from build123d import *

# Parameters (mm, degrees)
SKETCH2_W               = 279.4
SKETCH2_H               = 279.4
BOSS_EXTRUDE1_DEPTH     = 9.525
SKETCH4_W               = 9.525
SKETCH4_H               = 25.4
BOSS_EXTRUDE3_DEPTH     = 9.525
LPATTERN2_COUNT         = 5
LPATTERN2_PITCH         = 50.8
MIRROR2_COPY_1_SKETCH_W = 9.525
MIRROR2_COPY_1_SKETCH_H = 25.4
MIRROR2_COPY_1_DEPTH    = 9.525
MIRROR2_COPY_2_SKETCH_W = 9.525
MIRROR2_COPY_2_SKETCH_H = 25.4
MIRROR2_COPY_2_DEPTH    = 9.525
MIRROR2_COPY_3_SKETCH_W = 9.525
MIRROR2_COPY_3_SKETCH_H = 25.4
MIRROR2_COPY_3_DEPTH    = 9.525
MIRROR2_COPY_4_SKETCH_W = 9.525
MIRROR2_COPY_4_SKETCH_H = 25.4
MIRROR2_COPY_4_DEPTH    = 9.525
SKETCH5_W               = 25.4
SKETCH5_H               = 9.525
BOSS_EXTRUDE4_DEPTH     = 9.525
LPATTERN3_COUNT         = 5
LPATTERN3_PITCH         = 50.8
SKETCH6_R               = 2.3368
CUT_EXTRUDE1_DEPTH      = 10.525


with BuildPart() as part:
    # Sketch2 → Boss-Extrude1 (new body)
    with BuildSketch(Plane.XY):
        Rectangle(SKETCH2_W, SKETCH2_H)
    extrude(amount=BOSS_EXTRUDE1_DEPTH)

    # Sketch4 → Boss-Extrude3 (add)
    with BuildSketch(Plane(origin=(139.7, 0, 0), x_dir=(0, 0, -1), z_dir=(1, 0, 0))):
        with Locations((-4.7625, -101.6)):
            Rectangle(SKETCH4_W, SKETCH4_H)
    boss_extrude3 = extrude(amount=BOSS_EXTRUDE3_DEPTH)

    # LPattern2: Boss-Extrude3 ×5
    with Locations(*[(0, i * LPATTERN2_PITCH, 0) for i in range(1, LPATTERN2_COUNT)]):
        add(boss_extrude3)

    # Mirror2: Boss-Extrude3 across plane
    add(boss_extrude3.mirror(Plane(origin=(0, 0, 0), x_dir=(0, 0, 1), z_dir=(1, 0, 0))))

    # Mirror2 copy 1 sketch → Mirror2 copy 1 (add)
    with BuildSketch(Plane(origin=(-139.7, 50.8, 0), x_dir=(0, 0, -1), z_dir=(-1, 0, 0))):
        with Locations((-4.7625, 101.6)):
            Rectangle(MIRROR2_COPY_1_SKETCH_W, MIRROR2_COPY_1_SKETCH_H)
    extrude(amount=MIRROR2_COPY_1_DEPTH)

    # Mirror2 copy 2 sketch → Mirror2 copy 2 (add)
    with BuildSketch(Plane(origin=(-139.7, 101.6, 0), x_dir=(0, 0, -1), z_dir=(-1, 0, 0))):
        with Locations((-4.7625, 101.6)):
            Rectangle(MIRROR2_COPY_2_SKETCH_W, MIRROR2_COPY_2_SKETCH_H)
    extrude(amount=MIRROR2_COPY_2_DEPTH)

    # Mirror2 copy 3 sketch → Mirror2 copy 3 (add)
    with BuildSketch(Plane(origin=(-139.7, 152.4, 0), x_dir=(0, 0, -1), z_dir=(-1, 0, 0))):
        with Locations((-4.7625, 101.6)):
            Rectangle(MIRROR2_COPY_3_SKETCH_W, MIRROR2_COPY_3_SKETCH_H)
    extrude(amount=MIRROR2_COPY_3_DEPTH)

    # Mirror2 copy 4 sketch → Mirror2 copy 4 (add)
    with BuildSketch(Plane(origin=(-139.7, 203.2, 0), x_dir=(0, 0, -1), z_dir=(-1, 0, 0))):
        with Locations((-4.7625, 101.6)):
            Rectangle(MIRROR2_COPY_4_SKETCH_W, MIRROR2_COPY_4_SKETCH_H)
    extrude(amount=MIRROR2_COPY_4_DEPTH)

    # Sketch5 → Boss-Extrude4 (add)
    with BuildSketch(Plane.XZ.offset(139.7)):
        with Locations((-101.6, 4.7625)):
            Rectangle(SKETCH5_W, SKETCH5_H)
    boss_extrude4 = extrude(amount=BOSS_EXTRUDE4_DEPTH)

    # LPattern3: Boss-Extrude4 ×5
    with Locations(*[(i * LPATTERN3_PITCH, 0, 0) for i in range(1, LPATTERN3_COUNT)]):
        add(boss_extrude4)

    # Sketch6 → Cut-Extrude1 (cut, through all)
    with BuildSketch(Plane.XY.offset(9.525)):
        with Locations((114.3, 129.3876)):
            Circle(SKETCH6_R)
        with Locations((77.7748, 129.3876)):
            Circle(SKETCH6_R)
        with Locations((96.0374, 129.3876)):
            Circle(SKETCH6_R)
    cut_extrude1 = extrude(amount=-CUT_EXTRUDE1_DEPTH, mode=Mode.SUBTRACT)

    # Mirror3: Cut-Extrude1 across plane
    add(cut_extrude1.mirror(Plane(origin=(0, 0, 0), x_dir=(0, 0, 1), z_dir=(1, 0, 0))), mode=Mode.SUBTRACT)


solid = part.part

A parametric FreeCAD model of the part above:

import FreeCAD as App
import Part
import Sketcher

V = App.Vector
Q = App.Units.Quantity

doc = App.newDocument("Part")
params = doc.addObject("Spreadsheet::Sheet", "Params")
for row, (alias, value) in enumerate([
    ("sketch1_width", "11 in"),
    ("pad1_length", "0.375 in"),
    ("sketch2_width", "1 in"),
    ("sketch2_height", "0.375 in"),
    ("pad2_length", "0.375 in"),
    ("linearpattern_pitch", "2 in"),
    ("sketch3_width", "1 in"),
    ("sketch3_height", "0.375 in"),
    ("pad3_length", "0.375 in"),
    ("sketch4_width", "1 in"),
    ("sketch4_height", "0.375 in"),
    ("pad4_length", "0.375 in"),
    ("sketch5_width", "1 in"),
    ("sketch5_height", "0.375 in"),
    ("pad5_length", "0.375 in"),
    ("sketch6_width", "1 in"),
    ("sketch6_height", "0.375 in"),
    ("pad6_length", "0.375 in"),
    ("sketch7_width", "1 in"),
    ("sketch7_height", "0.375 in"),
    ("pad7_length", "0.375 in"),
    ("linearpattern2_pitch", "2 in"),
    ("sketch8_diameter", "0.184 in"),
], start=1):
    params.set(f"A{row}", alias)
    params.set(f"B{row}", "=" + value)
    params.setAlias(f"B{row}", alias)

body = doc.addObject("PartDesign::Body", "Body")

sketch1 = doc.addObject("Sketcher::SketchObject", "Sketch")
body.addObject(sketch1)
sketch1.AttachmentSupport = (doc.XY_Plane, [""])
sketch1.MapMode = "FlatFace"
sketch1.addGeometry([
    Part.LineSegment(V(-140, 140, 0), V(-140, -140, 0)),
    Part.LineSegment(V(-140, -140, 0), V(140, -140, 0)),
    Part.LineSegment(V(140, -140, 0), V(140, 140, 0)),
    Part.LineSegment(V(140, 140, 0), V(-140, 140, 0)),
], False)
sketch1.addConstraint([
    Sketcher.Constraint("Coincident", 0, 2, 1, 1),
    Sketcher.Constraint("Coincident", 1, 2, 2, 1),
    Sketcher.Constraint("Coincident", 2, 2, 3, 1),
    Sketcher.Constraint("Coincident", 3, 2, 0, 1),
    Sketcher.Constraint("Vertical", 0),
    Sketcher.Constraint("Horizontal", 1),
    Sketcher.Constraint("Vertical", 2),
    Sketcher.Constraint("Horizontal", 3),
    Sketcher.Constraint("Symmetric", 0, 2, 2, 2, -1, 1),
    Sketcher.Constraint("Equal", 3, 0),
    Sketcher.Constraint("DistanceX", 1, 1, 1, 2, Q("11 in")),
])
sketch1.setExpression("Constraints[10]", "Params.sketch1_width")
pad1 = doc.addObject("PartDesign::Pad", "Pad")
body.addObject(pad1)
pad1.Profile = sketch1
pad1.setExpression("Length", "Params.pad1_length")

sketch2 = doc.addObject("Sketcher::SketchObject", "Sketch001")
body.addObject(sketch2)
sketch2.AttachmentSupport = (doc.YZ_Plane, [""])
sketch2.MapMode = "FlatFace"
sketch2.AttachmentOffset = App.Placement(V(0, 0, 5.5 * 25.4), App.Rotation())
sketch2.addGeometry([
    Part.LineSegment(V(-89, 10, 0), V(-114, 10, 0)),
    Part.LineSegment(V(-114, 10, 0), V(-114, 0, 0)),
    Part.LineSegment(V(-114, 0, 0), V(-89, 0, 0)),
    Part.LineSegment(V(-89, 0, 0), V(-89, 10, 0)),
], False)
sketch2.addConstraint([
    Sketcher.Constraint("Coincident", 0, 2, 1, 1),
    Sketcher.Constraint("Coincident", 1, 2, 2, 1),
    Sketcher.Constraint("Coincident", 2, 2, 3, 1),
    Sketcher.Constraint("Coincident", 3, 2, 0, 1),
    Sketcher.Constraint("Horizontal", 0),
    Sketcher.Constraint("Vertical", 1),
    Sketcher.Constraint("Horizontal", 2),
    Sketcher.Constraint("Vertical", 3),
    Sketcher.Constraint("PointOnObject", 1, 2, -1),
    Sketcher.Constraint("DistanceX", 0, 2, 0, 1, Q("1 in")),
    Sketcher.Constraint("DistanceX", 0, 2, -1, 1, Q("4.5 in")),
    Sketcher.Constraint("DistanceY", 1, 2, 1, 1, Q("0.375 in")),
])
sketch2.setExpression("Constraints[9]", "Params.sketch2_width")
sketch2.setExpression("Constraints[11]", "Params.sketch2_height")
pad2 = doc.addObject("PartDesign::Pad", "Pad001")
body.addObject(pad2)
pad2.Profile = sketch2
pad2.setExpression("Length", "Params.pad2_length")
doc.recompute()

linearpattern = doc.addObject("PartDesign::LinearPattern", "LinearPattern")
body.addObject(linearpattern)
linearpattern.Originals = [pad2]
linearpattern.Direction = (doc.Y_Axis, [""])
linearpattern.Mode = "offset"
linearpattern.setExpression("Offset", "Params.linearpattern_pitch")
linearpattern.Occurrences = 5
body.Tip = linearpattern
doc.recompute()

mirrored = doc.addObject("PartDesign::Mirrored", "Mirrored")
body.addObject(mirrored)
mirrored.Originals = [pad2]
mirrored.MirrorPlane = (doc.YZ_Plane, [""])
body.Tip = mirrored

sketch3 = doc.addObject("Sketcher::SketchObject", "Sketch002")
body.addObject(sketch3)
sketch3.AttachmentSupport = (doc.YZ_Plane, [""])
sketch3.MapMode = "FlatFace"
sketch3.AttachmentOffset = App.Placement(V(0, 0, -5.5 * 25.4), App.Rotation())
sketch3.addGeometry([
    Part.LineSegment(V(-64, 10, 0), V(-38, 10, 0)),
    Part.LineSegment(V(-38, 10, 0), V(-38, 0, 0)),
    Part.LineSegment(V(-38, 0, 0), V(-64, 0, 0)),
    Part.LineSegment(V(-64, 0, 0), V(-64, 10, 0)),
], False)
sketch3.addConstraint([
    Sketcher.Constraint("Coincident", 0, 2, 1, 1),
    Sketcher.Constraint("Coincident", 1, 2, 2, 1),
    Sketcher.Constraint("Coincident", 2, 2, 3, 1),
    Sketcher.Constraint("Coincident", 3, 2, 0, 1),
    Sketcher.Constraint("Horizontal", 0),
    Sketcher.Constraint("Vertical", 1),
    Sketcher.Constraint("Horizontal", 2),
    Sketcher.Constraint("Vertical", 3),
    Sketcher.Constraint("PointOnObject", 1, 2, -1),
    Sketcher.Constraint("DistanceX", 0, 1, 0, 2, Q("1 in")),
    Sketcher.Constraint("DistanceX", 0, 2, -1, 1, Q("1.5 in")),
    Sketcher.Constraint("DistanceY", 1, 2, 1, 1, Q("0.375 in")),
])
sketch3.setExpression("Constraints[9]", "Params.sketch3_width")
sketch3.setExpression("Constraints[11]", "Params.sketch3_height")
pad3 = doc.addObject("PartDesign::Pad", "Pad002")
body.addObject(pad3)
pad3.Profile = sketch3
pad3.setExpression("Length", "Params.pad3_length")
pad3.Reversed = True

sketch4 = doc.addObject("Sketcher::SketchObject", "Sketch003")
body.addObject(sketch4)
sketch4.AttachmentSupport = (doc.YZ_Plane, [""])
sketch4.MapMode = "FlatFace"
sketch4.AttachmentOffset = App.Placement(V(0, 0, -5.5 * 25.4), App.Rotation())
sketch4.addGeometry([
    Part.LineSegment(V(-13, 10, 0), V(13, 10, 0)),
    Part.LineSegment(V(13, 10, 0), V(13, 0, 0)),
    Part.LineSegment(V(13, 0, 0), V(-13, 0, 0)),
    Part.LineSegment(V(-13, 0, 0), V(-13, 10, 0)),
], False)
sketch4.addConstraint([
    Sketcher.Constraint("Coincident", 0, 2, 1, 1),
    Sketcher.Constraint("Coincident", 1, 2, 2, 1),
    Sketcher.Constraint("Coincident", 2, 2, 3, 1),
    Sketcher.Constraint("Coincident", 3, 2, 0, 1),
    Sketcher.Constraint("Horizontal", 0),
    Sketcher.Constraint("Vertical", 1),
    Sketcher.Constraint("Horizontal", 2),
    Sketcher.Constraint("Vertical", 3),
    Sketcher.Constraint("Symmetric", 1, 2, 2, 2, -1, 1),
    Sketcher.Constraint("DistanceX", 0, 1, 0, 2, Q("1 in")),
    Sketcher.Constraint("DistanceY", 1, 2, 1, 1, Q("0.375 in")),
])
sketch4.setExpression("Constraints[9]", "Params.sketch4_width")
sketch4.setExpression("Constraints[10]", "Params.sketch4_height")
pad4 = doc.addObject("PartDesign::Pad", "Pad003")
body.addObject(pad4)
pad4.Profile = sketch4
pad4.setExpression("Length", "Params.pad4_length")
pad4.Reversed = True

sketch5 = doc.addObject("Sketcher::SketchObject", "Sketch004")
body.addObject(sketch5)
sketch5.AttachmentSupport = (doc.YZ_Plane, [""])
sketch5.MapMode = "FlatFace"
sketch5.AttachmentOffset = App.Placement(V(0, 0, -5.5 * 25.4), App.Rotation())
sketch5.addGeometry([
    Part.LineSegment(V(38, 10, 0), V(64, 10, 0)),
    Part.LineSegment(V(64, 10, 0), V(64, 0, 0)),
    Part.LineSegment(V(64, 0, 0), V(38, 0, 0)),
    Part.LineSegment(V(38, 0, 0), V(38, 10, 0)),
], False)
sketch5.addConstraint([
    Sketcher.Constraint("Coincident", 0, 2, 1, 1),
    Sketcher.Constraint("Coincident", 1, 2, 2, 1),
    Sketcher.Constraint("Coincident", 2, 2, 3, 1),
    Sketcher.Constraint("Coincident", 3, 2, 0, 1),
    Sketcher.Constraint("Horizontal", 0),
    Sketcher.Constraint("Vertical", 1),
    Sketcher.Constraint("Horizontal", 2),
    Sketcher.Constraint("Vertical", 3),
    Sketcher.Constraint("PointOnObject", 1, 2, -1),
    Sketcher.Constraint("DistanceX", 0, 1, 0, 2, Q("1 in")),
    Sketcher.Constraint("DistanceX", -1, 1, 0, 2, Q("2.5 in")),
    Sketcher.Constraint("DistanceY", 1, 2, 1, 1, Q("0.375 in")),
])
sketch5.setExpression("Constraints[9]", "Params.sketch5_width")
sketch5.setExpression("Constraints[11]", "Params.sketch5_height")
pad5 = doc.addObject("PartDesign::Pad", "Pad004")
body.addObject(pad5)
pad5.Profile = sketch5
pad5.setExpression("Length", "Params.pad5_length")
pad5.Reversed = True

sketch6 = doc.addObject("Sketcher::SketchObject", "Sketch005")
body.addObject(sketch6)
sketch6.AttachmentSupport = (doc.YZ_Plane, [""])
sketch6.MapMode = "FlatFace"
sketch6.AttachmentOffset = App.Placement(V(0, 0, -5.5 * 25.4), App.Rotation())
sketch6.addGeometry([
    Part.LineSegment(V(89, 10, 0), V(114, 10, 0)),
    Part.LineSegment(V(114, 10, 0), V(114, 0, 0)),
    Part.LineSegment(V(114, 0, 0), V(89, 0, 0)),
    Part.LineSegment(V(89, 0, 0), V(89, 10, 0)),
], False)
sketch6.addConstraint([
    Sketcher.Constraint("Coincident", 0, 2, 1, 1),
    Sketcher.Constraint("Coincident", 1, 2, 2, 1),
    Sketcher.Constraint("Coincident", 2, 2, 3, 1),
    Sketcher.Constraint("Coincident", 3, 2, 0, 1),
    Sketcher.Constraint("Horizontal", 0),
    Sketcher.Constraint("Vertical", 1),
    Sketcher.Constraint("Horizontal", 2),
    Sketcher.Constraint("Vertical", 3),
    Sketcher.Constraint("PointOnObject", 1, 2, -1),
    Sketcher.Constraint("DistanceX", 0, 1, 0, 2, Q("1 in")),
    Sketcher.Constraint("DistanceX", -1, 1, 0, 2, Q("4.5 in")),
    Sketcher.Constraint("DistanceY", 1, 2, 1, 1, Q("0.375 in")),
])
sketch6.setExpression("Constraints[9]", "Params.sketch6_width")
sketch6.setExpression("Constraints[11]", "Params.sketch6_height")
pad6 = doc.addObject("PartDesign::Pad", "Pad005")
body.addObject(pad6)
pad6.Profile = sketch6
pad6.setExpression("Length", "Params.pad6_length")
pad6.Reversed = True

sketch7 = doc.addObject("Sketcher::SketchObject", "Sketch006")
body.addObject(sketch7)
sketch7.AttachmentSupport = (doc.XZ_Plane, [""])
sketch7.MapMode = "FlatFace"
sketch7.AttachmentOffset = App.Placement(V(0, 0, 5.5 * 25.4), App.Rotation())
sketch7.addGeometry([
    Part.LineSegment(V(-114, 10, 0), V(-114, 0, 0)),
    Part.LineSegment(V(-114, 0, 0), V(-89, 0, 0)),
    Part.LineSegment(V(-89, 0, 0), V(-89, 10, 0)),
    Part.LineSegment(V(-89, 10, 0), V(-114, 10, 0)),
], False)
sketch7.addConstraint([
    Sketcher.Constraint("Coincident", 0, 2, 1, 1),
    Sketcher.Constraint("Coincident", 1, 2, 2, 1),
    Sketcher.Constraint("Coincident", 2, 2, 3, 1),
    Sketcher.Constraint("Coincident", 3, 2, 0, 1),
    Sketcher.Constraint("Vertical", 0),
    Sketcher.Constraint("Horizontal", 1),
    Sketcher.Constraint("Vertical", 2),
    Sketcher.Constraint("Horizontal", 3),
    Sketcher.Constraint("PointOnObject", 0, 2, -1),
    Sketcher.Constraint("DistanceX", 1, 1, 1, 2, Q("1 in")),
    Sketcher.Constraint("DistanceX", 0, 2, -1, 1, Q("4.5 in")),
    Sketcher.Constraint("DistanceY", 0, 2, 0, 1, Q("0.375 in")),
])
sketch7.setExpression("Constraints[9]", "Params.sketch7_width")
sketch7.setExpression("Constraints[11]", "Params.sketch7_height")
pad7 = doc.addObject("PartDesign::Pad", "Pad006")
body.addObject(pad7)
pad7.Profile = sketch7
pad7.setExpression("Length", "Params.pad7_length")
doc.recompute()

linearpattern2 = doc.addObject("PartDesign::LinearPattern", "LinearPattern001")
body.addObject(linearpattern2)
linearpattern2.Originals = [pad7]
linearpattern2.Direction = (doc.X_Axis, [""])
linearpattern2.Mode = "offset"
linearpattern2.setExpression("Offset", "Params.linearpattern2_pitch")
linearpattern2.Occurrences = 5
body.Tip = linearpattern2

sketch8 = doc.addObject("Sketcher::SketchObject", "Sketch007")
body.addObject(sketch8)
sketch8.AttachmentSupport = (doc.XY_Plane, [""])
sketch8.MapMode = "FlatFace"
sketch8.AttachmentOffset = App.Placement(V(0, 0, 0.375 * 25.4), App.Rotation())
sketch8.addGeometry([
    Part.Circle(V(114.3, 129.4, 0), V(0, 0, 1), 2.3),
    Part.Circle(V(77.8, 129.4, 0), V(0, 0, 1), 2.3),
    Part.Circle(V(96, 129.4, 0), V(0, 0, 1), 2.3),
], False)
sketch8.addConstraint([
    Sketcher.Constraint("Equal", 0, 1),
    Sketcher.Constraint("Equal", 1, 2),
    Sketcher.Constraint("Horizontal", 0, 3, 1, 3),
    Sketcher.Constraint("Horizontal", 1, 3, 2, 3),
    Sketcher.Constraint("Diameter", 0, Q("0.184 in")),
    Sketcher.Constraint("DistanceX", -1, 1, 0, 3, Q("4.5 in")),
    Sketcher.Constraint("DistanceY", -1, 1, 0, 3, Q("5.094 in")),
    Sketcher.Constraint("DistanceX", -1, 1, 1, 3, Q("3.062 in")),
    Sketcher.Constraint("DistanceX", -1, 1, 2, 3, Q("3.781 in")),
])
sketch8.setExpression("Constraints[4]", "Params.sketch8_diameter")
pocket1 = doc.addObject("PartDesign::Pocket", "Pocket")
body.addObject(pocket1)
pocket1.Profile = sketch8
pocket1.Type = "ThroughAll"
doc.recompute()

mirrored2 = doc.addObject("PartDesign::Mirrored", "Mirrored001")
body.addObject(mirrored2)
mirrored2.Originals = [pocket1]
mirrored2.MirrorPlane = (doc.YZ_Plane, [""])
body.Tip = mirrored2

doc.recompute()
